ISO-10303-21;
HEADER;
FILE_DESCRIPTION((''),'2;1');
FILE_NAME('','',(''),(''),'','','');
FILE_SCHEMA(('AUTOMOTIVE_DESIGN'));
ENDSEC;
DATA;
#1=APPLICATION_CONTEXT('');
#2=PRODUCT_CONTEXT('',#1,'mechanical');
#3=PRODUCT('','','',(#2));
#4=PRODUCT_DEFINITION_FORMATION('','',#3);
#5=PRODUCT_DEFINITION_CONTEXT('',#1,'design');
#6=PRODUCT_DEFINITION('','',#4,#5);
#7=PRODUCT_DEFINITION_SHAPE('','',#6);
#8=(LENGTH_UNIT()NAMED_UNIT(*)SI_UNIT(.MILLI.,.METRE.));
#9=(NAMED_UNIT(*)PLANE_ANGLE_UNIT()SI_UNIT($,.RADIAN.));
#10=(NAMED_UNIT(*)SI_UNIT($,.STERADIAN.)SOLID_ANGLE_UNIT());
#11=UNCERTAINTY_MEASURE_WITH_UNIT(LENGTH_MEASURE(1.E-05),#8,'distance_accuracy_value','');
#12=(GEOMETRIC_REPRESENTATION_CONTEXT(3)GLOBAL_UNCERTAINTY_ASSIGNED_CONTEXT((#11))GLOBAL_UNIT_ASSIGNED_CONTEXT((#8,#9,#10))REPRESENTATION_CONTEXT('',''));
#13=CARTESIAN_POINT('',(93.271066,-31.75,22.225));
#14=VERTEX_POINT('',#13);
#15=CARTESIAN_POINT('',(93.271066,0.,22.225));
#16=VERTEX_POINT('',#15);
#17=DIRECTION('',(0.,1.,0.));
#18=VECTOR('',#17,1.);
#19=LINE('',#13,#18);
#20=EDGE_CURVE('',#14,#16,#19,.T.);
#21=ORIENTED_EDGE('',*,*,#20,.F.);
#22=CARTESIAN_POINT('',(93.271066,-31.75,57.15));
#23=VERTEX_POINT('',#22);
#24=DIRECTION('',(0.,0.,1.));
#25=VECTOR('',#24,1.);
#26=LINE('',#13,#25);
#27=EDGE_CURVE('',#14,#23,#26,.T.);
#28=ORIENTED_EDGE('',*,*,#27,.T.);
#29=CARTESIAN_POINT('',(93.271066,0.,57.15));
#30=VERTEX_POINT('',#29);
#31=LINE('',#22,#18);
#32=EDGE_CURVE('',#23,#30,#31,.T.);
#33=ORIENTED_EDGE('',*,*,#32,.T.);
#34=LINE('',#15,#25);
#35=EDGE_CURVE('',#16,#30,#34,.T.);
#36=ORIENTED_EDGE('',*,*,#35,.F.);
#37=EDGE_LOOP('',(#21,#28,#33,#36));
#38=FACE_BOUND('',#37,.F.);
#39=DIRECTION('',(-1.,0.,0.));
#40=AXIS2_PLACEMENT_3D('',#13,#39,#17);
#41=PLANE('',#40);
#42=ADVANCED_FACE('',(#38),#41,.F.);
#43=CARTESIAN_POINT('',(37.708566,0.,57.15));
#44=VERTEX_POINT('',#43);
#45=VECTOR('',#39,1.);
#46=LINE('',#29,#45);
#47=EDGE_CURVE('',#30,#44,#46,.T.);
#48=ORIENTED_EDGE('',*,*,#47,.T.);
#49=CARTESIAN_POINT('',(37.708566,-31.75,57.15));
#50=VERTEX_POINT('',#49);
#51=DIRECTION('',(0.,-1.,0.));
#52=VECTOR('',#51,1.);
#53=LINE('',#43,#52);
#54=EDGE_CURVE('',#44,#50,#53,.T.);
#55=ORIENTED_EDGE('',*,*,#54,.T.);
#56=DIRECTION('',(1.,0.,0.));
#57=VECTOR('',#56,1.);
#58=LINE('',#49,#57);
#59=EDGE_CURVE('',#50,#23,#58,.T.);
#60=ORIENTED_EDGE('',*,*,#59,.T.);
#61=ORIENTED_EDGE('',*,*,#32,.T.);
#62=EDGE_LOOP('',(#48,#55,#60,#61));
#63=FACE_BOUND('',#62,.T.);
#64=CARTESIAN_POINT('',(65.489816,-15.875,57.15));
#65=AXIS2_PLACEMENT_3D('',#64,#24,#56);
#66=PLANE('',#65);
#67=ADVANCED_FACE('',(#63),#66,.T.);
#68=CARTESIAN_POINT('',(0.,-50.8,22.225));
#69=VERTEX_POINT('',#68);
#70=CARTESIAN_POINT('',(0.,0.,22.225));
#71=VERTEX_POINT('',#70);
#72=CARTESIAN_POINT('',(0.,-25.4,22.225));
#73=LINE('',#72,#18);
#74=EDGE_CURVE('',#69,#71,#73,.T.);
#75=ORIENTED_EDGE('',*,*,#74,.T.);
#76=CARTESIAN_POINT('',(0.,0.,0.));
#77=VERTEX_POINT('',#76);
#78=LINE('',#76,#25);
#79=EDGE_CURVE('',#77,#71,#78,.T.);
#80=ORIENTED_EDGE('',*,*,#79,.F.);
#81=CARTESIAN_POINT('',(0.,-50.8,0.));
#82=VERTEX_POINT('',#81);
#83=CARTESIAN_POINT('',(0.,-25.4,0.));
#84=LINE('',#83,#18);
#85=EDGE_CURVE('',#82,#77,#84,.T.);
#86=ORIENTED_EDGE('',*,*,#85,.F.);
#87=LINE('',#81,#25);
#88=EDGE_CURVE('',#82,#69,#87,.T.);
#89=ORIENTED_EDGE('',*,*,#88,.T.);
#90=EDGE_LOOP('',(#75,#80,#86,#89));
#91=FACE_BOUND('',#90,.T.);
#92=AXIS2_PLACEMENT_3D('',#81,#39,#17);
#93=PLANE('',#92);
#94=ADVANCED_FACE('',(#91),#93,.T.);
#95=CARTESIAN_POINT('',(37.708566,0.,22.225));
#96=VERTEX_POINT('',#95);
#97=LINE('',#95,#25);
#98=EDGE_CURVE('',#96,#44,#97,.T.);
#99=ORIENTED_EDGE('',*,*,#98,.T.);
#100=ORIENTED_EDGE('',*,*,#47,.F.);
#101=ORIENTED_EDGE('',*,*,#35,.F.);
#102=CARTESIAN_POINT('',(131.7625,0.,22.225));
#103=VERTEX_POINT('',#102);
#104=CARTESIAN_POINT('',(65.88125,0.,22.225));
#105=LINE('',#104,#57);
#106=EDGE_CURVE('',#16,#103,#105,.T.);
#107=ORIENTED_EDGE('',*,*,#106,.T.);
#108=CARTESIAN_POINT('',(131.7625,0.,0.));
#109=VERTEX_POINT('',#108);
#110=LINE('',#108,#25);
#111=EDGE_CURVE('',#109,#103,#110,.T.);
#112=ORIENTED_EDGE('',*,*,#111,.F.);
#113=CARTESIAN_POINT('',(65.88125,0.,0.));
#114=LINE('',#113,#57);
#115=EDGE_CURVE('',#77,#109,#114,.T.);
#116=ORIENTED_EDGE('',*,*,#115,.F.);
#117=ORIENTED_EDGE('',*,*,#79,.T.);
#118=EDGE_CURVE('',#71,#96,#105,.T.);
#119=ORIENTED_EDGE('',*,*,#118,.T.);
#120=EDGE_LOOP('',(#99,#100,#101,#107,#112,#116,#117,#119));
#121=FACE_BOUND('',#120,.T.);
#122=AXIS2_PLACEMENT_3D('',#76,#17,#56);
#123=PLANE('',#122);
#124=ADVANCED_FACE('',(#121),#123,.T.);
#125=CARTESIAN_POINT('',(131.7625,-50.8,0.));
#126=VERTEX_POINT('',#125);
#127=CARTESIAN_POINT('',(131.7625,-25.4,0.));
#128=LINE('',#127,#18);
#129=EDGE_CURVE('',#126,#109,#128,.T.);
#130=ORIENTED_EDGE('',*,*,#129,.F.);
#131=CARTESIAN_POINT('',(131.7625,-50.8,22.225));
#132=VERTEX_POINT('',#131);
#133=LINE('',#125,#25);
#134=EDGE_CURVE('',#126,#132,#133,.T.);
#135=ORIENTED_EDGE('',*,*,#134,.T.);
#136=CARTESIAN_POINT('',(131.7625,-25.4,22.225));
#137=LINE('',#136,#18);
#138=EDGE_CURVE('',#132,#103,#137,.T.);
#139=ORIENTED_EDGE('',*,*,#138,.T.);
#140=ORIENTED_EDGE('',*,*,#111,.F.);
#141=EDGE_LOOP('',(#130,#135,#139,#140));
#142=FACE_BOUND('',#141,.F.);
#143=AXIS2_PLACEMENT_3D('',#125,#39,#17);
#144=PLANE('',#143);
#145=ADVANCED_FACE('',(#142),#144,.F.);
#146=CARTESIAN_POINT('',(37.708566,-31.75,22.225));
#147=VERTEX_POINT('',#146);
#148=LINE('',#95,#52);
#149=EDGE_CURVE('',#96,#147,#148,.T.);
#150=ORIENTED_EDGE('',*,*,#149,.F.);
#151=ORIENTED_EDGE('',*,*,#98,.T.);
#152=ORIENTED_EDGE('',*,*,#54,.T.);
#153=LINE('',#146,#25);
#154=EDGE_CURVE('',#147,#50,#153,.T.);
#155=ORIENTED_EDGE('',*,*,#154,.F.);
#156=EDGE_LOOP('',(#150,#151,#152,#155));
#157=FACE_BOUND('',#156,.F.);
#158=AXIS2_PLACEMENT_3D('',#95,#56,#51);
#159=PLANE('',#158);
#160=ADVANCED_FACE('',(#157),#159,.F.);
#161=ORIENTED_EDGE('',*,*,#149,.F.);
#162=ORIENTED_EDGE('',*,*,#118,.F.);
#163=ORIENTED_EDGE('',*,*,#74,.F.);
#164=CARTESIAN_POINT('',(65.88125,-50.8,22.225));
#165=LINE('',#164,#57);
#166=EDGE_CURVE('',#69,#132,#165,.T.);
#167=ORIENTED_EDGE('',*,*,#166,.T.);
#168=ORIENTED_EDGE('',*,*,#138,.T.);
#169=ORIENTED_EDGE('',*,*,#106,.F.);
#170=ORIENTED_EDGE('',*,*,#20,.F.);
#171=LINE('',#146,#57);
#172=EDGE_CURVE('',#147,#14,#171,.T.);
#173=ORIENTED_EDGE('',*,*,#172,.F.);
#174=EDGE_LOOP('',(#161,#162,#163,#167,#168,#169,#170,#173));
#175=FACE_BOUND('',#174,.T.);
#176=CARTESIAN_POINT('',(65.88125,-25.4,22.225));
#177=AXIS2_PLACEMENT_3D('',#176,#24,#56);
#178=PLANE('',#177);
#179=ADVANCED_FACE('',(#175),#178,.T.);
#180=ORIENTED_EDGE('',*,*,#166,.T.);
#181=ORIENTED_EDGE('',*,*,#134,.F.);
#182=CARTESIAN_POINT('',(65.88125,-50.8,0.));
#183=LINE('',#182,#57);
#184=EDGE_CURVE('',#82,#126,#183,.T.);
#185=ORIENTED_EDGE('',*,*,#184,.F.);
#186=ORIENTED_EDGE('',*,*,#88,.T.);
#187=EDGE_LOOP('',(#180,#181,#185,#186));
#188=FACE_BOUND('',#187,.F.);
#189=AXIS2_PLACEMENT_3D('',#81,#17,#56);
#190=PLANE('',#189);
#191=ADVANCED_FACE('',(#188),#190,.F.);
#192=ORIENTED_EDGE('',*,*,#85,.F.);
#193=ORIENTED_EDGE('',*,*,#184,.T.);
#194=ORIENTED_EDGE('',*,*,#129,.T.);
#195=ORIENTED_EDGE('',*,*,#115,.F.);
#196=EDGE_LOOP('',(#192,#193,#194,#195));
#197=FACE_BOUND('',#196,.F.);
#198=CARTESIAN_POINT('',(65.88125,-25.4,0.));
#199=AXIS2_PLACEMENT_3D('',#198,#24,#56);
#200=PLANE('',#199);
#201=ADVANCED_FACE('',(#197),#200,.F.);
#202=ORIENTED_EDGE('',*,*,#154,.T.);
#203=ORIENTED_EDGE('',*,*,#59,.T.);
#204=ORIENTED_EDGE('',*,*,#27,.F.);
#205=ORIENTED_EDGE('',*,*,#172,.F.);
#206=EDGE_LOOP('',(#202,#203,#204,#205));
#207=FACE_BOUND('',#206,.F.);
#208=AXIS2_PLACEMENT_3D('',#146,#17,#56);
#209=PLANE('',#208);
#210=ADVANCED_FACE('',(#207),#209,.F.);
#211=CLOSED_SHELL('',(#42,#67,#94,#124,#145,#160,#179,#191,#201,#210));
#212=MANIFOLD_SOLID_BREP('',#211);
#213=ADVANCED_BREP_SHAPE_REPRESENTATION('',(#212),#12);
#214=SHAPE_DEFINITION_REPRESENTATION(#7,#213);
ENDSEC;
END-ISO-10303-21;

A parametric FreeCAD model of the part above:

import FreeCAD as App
import Part
import Sketcher
Q = App.Units.Quantity


def add_polygon(sketch, points):
    """Adds a closed chain of lines whose ends are joined by coincident constraints."""
    first, n = sketch.GeometryCount, len(points)
    for a, b in zip(points, points[1:] + points[:1]):
        sketch.addGeometry(Part.LineSegment(App.Vector(*a, 0), App.Vector(*b, 0)), False)
    for i in range(n):
        sketch.addConstraint(Sketcher.Constraint("Coincident", first + i, 2, first + (i + 1) % n, 1))

doc = App.newDocument("Part")
body = doc.addObject("PartDesign::Body", "Body")

# Sketch on XY plane
sketch1 = body.newObject("Sketcher::SketchObject", "Sketch")
sketch1.AttachmentSupport = (doc.getObject("XY_Plane"), [""])
sketch1.MapMode = "FlatFace"
add_polygon(sketch1, [(0, 0), (0, -50.8), (131.7625, -50.8), (131.7625, 0)])  # lines 0-3
sketch1.addConstraint([
    Sketcher.Constraint("Vertical", 0),
    Sketcher.Constraint("Horizontal", 1),
    Sketcher.Constraint("Vertical", 2),
    Sketcher.Constraint("Horizontal", 3),
    Sketcher.Constraint("Coincident", 3, 2, -1, 1),
    Sketcher.Constraint("DistanceY", 0, 2, 0, 1, Q("2 in")),
    Sketcher.Constraint("DistanceX", 1, 1, 1, 2, Q("5.1875 in")),
])
pad1 = body.newObject("PartDesign::Pad", "Pad")
pad1.Profile = sketch1
pad1.Length = Q("0.875 in")

# Sketch on XY plane
sketch2 = body.newObject("Sketcher::SketchObject", "Sketch001")
sketch2.AttachmentSupport = (doc.getObject("XY_Plane"), [""])
sketch2.MapMode = "FlatFace"
sketch2.AttachmentOffset = App.Placement(App.Vector(0, 0, 0.875 * 25.4), App.Rotation())
add_polygon(sketch2, [(93.271066, 0), (37.708566, 0), (37.708566, -31.75), (93.271066, -31.75)])  # lines 0-3
sketch2.addConstraint([
    Sketcher.Constraint("Horizontal", 0),
    Sketcher.Constraint("Vertical", 1),
    Sketcher.Constraint("Horizontal", 2),
    Sketcher.Constraint("Vertical", 3),
    Sketcher.Constraint("PointOnObject", 0, 2, -1),
    Sketcher.Constraint("DistanceY", 1, 2, 1, 1, Q("1.25 in")),
    Sketcher.Constraint("DistanceX", 0, 2, 0, 1, Q("2.1875 in")),
    Sketcher.Constraint("DistanceX", -1, 1, 0, 2, 37.708566),
])
pad2 = body.newObject("PartDesign::Pad", "Pad001")
pad2.Profile = sketch2
pad2.Length = Q("1.375 in")

doc.recompute()
